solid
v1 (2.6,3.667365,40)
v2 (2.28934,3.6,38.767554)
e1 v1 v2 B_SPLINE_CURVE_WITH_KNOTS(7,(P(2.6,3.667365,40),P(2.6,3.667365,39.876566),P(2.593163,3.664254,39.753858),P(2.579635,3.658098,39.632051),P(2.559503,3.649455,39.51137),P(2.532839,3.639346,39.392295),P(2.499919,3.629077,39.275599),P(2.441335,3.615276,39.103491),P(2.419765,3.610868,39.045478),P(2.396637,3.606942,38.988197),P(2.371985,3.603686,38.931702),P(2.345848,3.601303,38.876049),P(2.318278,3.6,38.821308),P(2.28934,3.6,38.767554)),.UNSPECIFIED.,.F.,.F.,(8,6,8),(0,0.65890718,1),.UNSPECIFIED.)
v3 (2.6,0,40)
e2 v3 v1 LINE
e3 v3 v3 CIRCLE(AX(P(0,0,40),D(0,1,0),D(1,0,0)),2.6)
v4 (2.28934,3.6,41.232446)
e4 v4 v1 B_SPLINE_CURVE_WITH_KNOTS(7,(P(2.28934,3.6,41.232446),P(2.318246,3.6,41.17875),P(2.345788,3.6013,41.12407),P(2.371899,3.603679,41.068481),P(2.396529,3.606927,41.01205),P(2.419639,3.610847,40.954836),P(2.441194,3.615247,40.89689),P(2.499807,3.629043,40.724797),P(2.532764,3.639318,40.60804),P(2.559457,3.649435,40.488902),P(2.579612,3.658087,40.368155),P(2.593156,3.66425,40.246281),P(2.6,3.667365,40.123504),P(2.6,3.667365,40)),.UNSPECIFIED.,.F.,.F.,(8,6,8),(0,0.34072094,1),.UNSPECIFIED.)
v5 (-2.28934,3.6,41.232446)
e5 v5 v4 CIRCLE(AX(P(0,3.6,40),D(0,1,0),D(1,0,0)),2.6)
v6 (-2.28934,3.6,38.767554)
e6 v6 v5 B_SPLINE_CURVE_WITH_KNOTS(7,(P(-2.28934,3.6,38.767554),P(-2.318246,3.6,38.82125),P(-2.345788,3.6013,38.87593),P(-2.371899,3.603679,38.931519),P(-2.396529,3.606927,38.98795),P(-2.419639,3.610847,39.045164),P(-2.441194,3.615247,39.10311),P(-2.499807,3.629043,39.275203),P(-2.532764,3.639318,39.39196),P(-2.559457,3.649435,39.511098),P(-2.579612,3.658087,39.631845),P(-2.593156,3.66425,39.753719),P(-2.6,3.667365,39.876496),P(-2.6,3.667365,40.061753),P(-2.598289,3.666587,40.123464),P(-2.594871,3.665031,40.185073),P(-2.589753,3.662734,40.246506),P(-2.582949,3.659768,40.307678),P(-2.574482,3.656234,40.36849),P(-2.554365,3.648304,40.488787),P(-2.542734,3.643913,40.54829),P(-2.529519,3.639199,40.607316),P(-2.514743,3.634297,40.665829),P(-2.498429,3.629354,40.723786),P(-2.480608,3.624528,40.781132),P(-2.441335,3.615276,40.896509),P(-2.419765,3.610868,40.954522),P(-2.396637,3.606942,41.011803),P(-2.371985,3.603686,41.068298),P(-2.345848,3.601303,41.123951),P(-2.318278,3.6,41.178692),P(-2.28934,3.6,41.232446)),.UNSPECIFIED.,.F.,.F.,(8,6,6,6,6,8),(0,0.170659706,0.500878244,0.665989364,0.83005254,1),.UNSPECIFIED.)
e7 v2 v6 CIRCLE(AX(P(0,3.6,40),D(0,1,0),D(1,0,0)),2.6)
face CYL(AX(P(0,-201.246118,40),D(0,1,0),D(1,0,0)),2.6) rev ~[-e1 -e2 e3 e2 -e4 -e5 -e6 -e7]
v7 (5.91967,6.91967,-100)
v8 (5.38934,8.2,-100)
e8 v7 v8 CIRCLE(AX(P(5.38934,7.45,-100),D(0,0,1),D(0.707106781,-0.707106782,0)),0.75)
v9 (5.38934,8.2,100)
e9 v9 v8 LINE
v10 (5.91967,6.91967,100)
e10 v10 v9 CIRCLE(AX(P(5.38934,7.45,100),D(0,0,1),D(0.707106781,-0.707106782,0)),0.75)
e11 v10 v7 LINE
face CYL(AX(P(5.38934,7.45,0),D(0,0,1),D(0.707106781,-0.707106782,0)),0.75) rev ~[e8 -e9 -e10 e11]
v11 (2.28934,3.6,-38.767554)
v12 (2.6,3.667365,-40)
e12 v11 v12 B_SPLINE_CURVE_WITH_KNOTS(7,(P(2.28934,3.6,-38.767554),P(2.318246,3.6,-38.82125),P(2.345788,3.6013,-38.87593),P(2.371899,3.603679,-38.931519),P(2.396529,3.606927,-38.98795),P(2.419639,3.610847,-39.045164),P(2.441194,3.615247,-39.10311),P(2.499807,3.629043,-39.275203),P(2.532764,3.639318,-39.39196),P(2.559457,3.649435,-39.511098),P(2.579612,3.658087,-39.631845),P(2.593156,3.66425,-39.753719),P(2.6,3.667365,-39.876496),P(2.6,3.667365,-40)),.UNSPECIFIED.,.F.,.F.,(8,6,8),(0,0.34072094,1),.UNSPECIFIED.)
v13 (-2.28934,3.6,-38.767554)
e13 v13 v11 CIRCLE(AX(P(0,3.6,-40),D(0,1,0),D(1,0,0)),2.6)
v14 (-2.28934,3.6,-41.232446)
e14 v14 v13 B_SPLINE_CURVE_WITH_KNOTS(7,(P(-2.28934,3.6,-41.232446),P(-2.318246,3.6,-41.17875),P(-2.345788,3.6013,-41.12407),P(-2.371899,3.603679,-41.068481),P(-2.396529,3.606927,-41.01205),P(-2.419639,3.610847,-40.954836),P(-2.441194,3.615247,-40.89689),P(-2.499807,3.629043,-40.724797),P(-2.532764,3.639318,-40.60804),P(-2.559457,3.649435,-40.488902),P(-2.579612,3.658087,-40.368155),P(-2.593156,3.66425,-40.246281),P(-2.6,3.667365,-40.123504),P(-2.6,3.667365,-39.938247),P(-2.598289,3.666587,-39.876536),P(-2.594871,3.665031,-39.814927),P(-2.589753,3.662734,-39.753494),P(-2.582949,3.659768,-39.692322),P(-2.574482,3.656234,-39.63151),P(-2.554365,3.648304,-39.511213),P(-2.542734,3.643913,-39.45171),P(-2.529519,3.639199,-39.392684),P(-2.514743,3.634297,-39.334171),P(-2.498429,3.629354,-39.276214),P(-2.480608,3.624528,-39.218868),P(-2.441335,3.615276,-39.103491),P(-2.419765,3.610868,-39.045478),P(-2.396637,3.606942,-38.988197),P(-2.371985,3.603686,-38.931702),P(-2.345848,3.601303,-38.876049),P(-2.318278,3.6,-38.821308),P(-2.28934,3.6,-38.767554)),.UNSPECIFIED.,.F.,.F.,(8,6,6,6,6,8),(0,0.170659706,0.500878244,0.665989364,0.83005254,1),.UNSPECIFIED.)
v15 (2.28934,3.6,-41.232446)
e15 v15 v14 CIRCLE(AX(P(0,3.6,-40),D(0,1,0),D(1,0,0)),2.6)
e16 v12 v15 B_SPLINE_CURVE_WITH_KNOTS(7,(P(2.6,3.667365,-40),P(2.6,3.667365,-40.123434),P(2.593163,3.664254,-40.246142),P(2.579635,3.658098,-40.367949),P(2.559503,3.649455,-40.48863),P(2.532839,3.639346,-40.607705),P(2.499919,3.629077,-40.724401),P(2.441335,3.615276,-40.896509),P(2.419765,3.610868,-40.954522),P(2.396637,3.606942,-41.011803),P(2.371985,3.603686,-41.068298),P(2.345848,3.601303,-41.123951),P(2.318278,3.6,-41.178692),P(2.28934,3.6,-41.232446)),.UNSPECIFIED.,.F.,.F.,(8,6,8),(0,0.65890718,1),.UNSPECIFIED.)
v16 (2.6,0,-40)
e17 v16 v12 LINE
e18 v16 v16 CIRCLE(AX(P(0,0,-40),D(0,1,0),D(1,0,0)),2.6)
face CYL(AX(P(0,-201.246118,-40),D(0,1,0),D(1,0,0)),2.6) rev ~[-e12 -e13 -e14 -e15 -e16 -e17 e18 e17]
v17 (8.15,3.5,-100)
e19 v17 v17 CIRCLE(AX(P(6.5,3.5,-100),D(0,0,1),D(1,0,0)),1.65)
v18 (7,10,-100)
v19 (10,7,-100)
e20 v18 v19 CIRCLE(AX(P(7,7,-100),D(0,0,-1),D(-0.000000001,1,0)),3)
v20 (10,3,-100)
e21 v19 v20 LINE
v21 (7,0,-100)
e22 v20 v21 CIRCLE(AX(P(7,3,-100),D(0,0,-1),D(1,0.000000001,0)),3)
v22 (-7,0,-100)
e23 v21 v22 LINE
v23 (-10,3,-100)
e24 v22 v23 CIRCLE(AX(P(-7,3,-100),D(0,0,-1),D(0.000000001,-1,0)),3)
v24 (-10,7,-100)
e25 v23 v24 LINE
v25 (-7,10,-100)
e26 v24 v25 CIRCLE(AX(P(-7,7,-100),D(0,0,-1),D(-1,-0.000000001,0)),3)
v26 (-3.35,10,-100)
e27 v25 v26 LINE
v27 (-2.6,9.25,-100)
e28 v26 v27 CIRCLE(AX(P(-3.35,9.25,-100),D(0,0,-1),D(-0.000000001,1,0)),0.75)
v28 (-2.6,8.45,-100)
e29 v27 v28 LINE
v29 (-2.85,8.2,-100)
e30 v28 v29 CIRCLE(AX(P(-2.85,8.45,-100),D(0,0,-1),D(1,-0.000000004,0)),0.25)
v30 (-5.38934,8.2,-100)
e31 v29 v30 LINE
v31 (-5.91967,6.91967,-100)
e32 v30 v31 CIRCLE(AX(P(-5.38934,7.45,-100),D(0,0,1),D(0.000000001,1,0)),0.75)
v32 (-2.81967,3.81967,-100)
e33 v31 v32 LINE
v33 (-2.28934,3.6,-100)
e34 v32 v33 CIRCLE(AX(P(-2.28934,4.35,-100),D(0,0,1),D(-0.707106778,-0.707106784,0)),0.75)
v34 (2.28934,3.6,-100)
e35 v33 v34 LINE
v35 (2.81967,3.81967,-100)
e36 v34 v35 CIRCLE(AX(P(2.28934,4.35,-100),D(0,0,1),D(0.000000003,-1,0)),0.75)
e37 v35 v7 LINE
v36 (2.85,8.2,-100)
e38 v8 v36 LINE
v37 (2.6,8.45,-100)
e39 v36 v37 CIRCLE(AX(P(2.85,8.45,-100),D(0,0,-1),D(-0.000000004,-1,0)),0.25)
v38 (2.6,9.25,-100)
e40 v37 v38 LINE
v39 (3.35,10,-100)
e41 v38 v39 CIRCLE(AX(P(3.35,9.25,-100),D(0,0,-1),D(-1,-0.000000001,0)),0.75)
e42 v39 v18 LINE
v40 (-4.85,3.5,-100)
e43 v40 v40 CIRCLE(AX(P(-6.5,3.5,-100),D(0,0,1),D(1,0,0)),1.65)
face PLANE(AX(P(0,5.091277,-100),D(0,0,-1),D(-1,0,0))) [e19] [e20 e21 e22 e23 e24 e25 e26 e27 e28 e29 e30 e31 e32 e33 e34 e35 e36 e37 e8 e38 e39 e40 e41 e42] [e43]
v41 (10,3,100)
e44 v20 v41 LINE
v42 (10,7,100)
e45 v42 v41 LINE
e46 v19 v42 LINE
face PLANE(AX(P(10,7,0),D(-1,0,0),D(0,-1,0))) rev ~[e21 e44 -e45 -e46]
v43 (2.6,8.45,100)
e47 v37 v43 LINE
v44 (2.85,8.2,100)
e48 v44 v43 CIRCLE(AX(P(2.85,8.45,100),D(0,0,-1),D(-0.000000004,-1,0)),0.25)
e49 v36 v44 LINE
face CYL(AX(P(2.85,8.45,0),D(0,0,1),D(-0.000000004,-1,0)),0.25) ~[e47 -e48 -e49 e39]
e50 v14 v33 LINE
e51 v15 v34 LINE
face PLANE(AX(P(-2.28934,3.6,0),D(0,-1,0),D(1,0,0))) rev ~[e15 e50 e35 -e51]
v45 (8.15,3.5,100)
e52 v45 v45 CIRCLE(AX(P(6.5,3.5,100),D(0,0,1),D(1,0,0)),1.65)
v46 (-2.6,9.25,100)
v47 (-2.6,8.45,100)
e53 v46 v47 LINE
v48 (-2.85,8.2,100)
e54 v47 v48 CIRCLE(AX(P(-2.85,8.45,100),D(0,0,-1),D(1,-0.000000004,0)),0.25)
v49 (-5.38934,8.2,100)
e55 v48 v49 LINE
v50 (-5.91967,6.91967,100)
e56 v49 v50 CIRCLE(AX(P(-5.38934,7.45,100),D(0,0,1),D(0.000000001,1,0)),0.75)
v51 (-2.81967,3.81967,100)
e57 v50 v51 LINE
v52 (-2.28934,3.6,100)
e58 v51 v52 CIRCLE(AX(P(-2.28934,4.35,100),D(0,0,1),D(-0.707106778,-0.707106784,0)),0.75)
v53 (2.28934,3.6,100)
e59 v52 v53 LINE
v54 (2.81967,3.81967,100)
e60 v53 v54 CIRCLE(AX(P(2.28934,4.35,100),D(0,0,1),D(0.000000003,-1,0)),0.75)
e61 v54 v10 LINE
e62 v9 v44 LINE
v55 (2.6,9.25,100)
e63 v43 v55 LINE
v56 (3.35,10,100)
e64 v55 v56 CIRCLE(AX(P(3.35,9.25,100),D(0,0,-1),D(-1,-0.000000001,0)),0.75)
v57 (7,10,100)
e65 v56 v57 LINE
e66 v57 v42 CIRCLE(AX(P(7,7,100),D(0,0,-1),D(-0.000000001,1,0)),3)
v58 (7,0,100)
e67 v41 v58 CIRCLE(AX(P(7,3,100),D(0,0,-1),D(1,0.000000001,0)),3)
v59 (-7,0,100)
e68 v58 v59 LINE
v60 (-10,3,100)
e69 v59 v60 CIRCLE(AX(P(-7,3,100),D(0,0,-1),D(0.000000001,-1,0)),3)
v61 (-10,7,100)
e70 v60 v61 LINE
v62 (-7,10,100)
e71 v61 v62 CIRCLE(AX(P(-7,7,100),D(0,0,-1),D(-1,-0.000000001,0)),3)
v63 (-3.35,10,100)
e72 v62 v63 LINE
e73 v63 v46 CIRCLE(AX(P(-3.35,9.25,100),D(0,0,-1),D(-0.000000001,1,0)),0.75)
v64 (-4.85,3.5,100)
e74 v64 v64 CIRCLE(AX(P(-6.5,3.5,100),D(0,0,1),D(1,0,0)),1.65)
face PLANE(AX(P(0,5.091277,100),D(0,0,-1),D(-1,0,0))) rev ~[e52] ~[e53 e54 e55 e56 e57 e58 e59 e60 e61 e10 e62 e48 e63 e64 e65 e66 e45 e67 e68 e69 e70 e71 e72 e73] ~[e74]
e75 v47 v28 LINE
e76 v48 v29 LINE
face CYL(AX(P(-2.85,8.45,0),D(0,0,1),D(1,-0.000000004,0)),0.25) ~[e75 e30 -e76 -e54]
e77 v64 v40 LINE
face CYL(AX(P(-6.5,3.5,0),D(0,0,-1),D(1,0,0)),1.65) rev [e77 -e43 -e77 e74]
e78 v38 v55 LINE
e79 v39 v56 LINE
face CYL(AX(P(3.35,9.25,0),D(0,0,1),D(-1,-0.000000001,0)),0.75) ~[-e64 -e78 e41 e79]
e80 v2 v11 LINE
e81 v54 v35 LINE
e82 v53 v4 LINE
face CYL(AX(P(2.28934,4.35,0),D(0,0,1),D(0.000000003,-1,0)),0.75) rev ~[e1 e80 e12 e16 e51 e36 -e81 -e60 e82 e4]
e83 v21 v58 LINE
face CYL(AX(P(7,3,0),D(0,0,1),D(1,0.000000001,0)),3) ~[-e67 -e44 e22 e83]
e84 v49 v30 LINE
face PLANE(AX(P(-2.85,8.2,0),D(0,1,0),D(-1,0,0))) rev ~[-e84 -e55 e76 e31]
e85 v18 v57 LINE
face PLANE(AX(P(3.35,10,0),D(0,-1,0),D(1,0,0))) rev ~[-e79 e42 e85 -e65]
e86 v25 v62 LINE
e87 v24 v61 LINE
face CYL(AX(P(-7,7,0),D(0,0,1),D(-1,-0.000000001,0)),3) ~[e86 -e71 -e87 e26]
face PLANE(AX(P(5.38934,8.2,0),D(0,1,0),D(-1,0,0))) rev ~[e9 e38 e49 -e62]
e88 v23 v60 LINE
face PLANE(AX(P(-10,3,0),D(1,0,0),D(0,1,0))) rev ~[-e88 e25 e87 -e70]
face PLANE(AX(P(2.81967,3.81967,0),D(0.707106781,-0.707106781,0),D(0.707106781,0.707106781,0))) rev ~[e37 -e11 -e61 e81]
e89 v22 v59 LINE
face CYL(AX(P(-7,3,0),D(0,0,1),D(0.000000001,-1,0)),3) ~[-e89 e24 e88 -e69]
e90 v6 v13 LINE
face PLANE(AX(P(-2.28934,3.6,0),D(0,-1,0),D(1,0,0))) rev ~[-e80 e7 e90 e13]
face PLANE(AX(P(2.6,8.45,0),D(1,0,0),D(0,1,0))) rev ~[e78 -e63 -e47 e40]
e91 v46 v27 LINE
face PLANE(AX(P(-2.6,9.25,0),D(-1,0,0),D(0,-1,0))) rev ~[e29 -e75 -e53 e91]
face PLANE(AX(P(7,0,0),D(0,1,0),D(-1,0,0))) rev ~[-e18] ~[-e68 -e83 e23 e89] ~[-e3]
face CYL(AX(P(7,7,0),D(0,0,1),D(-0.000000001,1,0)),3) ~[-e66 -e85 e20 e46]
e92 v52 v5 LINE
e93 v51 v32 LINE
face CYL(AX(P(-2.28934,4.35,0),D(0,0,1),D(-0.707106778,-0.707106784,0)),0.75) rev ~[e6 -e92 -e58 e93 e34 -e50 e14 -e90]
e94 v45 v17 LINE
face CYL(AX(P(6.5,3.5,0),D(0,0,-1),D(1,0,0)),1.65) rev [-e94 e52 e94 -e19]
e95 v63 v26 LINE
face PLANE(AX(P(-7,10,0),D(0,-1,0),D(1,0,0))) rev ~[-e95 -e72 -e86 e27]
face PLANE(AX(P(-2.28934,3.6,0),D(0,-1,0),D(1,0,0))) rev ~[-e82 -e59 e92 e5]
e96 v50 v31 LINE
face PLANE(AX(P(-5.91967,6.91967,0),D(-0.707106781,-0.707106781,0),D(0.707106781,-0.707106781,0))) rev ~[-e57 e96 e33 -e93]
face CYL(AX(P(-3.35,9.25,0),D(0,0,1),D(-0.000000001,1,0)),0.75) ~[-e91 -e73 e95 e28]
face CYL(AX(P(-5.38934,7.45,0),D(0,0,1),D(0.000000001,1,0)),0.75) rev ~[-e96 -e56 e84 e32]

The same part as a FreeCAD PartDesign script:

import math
import FreeCAD as App
import Part
import Sketcher

doc = App.newDocument("Part")
body = doc.addObject("PartDesign::Body", "Body")

# Sketch on XY plane
sketch1 = body.newObject("Sketcher::SketchObject", "Sketch")
sketch1.AttachmentSupport = (doc.getObject("XY_Plane"), [""])
sketch1.MapMode = "FlatFace"
sketch1.addGeometry(Part.LineSegment(App.Vector(-3.35, 10, 0), App.Vector(-7, 10, 0)), False)
sketch1.addGeometry(Part.ArcOfCircle(Part.Circle(App.Vector(-7, 7, 0), App.Vector(0, 0, 1), 3), math.radians(90), math.radians(180)), False)
sketch1.addGeometry(Part.LineSegment(App.Vector(-10, 7, 0), App.Vector(-10, 3, 0)), False)
sketch1.addGeometry(Part.ArcOfCircle(Part.Circle(App.Vector(-7, 3, 0), App.Vector(0, 0, 1), 3), math.radians(180), math.radians(270)), False)
sketch1.addGeometry(Part.LineSegment(App.Vector(-7, 0, 0), App.Vector(7, 0, 0)), False)
sketch1.addGeometry(Part.ArcOfCircle(Part.Circle(App.Vector(7, 3, 0), App.Vector(0, 0, 1), 3), math.radians(-90), math.radians(0)), False)
sketch1.addGeometry(Part.LineSegment(App.Vector(10, 3, 0), App.Vector(10, 7, 0)), False)
sketch1.addGeometry(Part.ArcOfCircle(Part.Circle(App.Vector(7, 7, 0), App.Vector(0, 0, 1), 3), math.radians(0), math.radians(90)), False)
sketch1.addGeometry(Part.LineSegment(App.Vector(7, 10, 0), App.Vector(3.35, 10, 0)), False)
sketch1.addGeometry(Part.ArcOfCircle(Part.Circle(App.Vector(3.35, 9.25, 0), App.Vector(0, 0, 1), 0.75), math.radians(90), math.radians(180)), False)
sketch1.addGeometry(Part.LineSegment(App.Vector(2.6, 9.25, 0), App.Vector(2.6, 8.45, 0)), False)
sketch1.addGeometry(Part.ArcOfCircle(Part.Circle(App.Vector(2.85, 8.45, 0), App.Vector(0, 0, 1), 0.25), math.radians(-180), math.radians(-90)), False)
sketch1.addGeometry(Part.LineSegment(App.Vector(2.85, 8.2, 0), App.Vector(5.39, 8.2, 0)), False)
sketch1.addGeometry(Part.ArcOfCircle(Part.Circle(App.Vector(5.39, 7.45, 0), App.Vector(0, 0, 1), 0.75), math.radians(-45), math.radians(90)), False)
sketch1.addGeometry(Part.LineSegment(App.Vector(5.92, 6.92, 0), App.Vector(2.82, 3.82, 0)), False)
sketch1.addGeometry(Part.ArcOfCircle(Part.Circle(App.Vector(2.29, 4.35, 0), App.Vector(0, 0, 1), 0.75), math.radians(-90), math.radians(-45)), False)
sketch1.addGeometry(Part.LineSegment(App.Vector(2.29, 3.6, 0), App.Vector(-2.29, 3.6, 0)), False)
sketch1.addGeometry(Part.ArcOfCircle(Part.Circle(App.Vector(-2.29, 4.35, 0), App.Vector(0, 0, 1), 0.75), math.radians(-135), math.radians(-90)), False)
sketch1.addGeometry(Part.LineSegment(App.Vector(-2.82, 3.82, 0), App.Vector(-5.92, 6.92, 0)), False)
sketch1.addGeometry(Part.ArcOfCircle(Part.Circle(App.Vector(-5.39, 7.45, 0), App.Vector(0, 0, 1), 0.75), math.radians(90), math.radians(225)), False)
sketch1.addGeometry(Part.LineSegment(App.Vector(-5.39, 8.2, 0), App.Vector(-2.85, 8.2, 0)), False)
sketch1.addGeometry(Part.ArcOfCircle(Part.Circle(App.Vector(-2.85, 8.45, 0), App.Vector(0, 0, 1), 0.25), math.radians(-90), math.radians(0)), False)
sketch1.addGeometry(Part.LineSegment(App.Vector(-2.6, 8.45, 0), App.Vector(-2.6, 9.25, 0)), False)
sketch1.addGeometry(Part.ArcOfCircle(Part.Circle(App.Vector(-3.35, 9.25, 0), App.Vector(0, 0, 1), 0.75), math.radians(0), math.radians(90)), False)
sketch1.addGeometry(Part.Circle(App.Vector(6.5, 3.5, 0), App.Vector(0, 0, 1), 1.65), False)
sketch1.addGeometry(Part.Circle(App.Vector(-6.5, 3.5, 0), App.Vector(0, 0, 1), 1.65), False)
sketch1.addConstraint(Sketcher.Constraint("Tangent", 0, 2, 1, 1))
sketch1.addConstraint(Sketcher.Constraint("Tangent", 1, 2, 2, 1))
sketch1.addConstraint(Sketcher.Constraint("Tangent", 2, 2, 3, 1))
sketch1.addConstraint(Sketcher.Constraint("Tangent", 3, 2, 4, 1))
sketch1.addConstraint(Sketcher.Constraint("Tangent", 4, 2, 5, 1))
sketch1.addConstraint(Sketcher.Constraint("Tangent", 5, 2, 6, 1))
sketch1.addConstraint(Sketcher.Constraint("Tangent", 6, 2, 7, 1))
sketch1.addConstraint(Sketcher.Constraint("Tangent", 7, 2, 8, 1))
sketch1.addConstraint(Sketcher.Constraint("Tangent", 8, 2, 9, 1))
sketch1.addConstraint(Sketcher.Constraint("Tangent", 9, 2, 10, 1))
sketch1.addConstraint(Sketcher.Constraint("Tangent", 10, 2, 11, 1))
sketch1.addConstraint(Sketcher.Constraint("Tangent", 11, 2, 12, 1))
sketch1.addConstraint(Sketcher.Constraint("Tangent", 12, 2, 13, 2))
sketch1.addConstraint(Sketcher.Constraint("Tangent", 13, 1, 14, 1))
sketch1.addConstraint(Sketcher.Constraint("Tangent", 14, 2, 15, 2))
sketch1.addConstraint(Sketcher.Constraint("Tangent", 15, 1, 16, 1))
sketch1.addConstraint(Sketcher.Constraint("Tangent", 16, 2, 17, 2))
sketch1.addConstraint(Sketcher.Constraint("Tangent", 17, 1, 18, 1))
sketch1.addConstraint(Sketcher.Constraint("Tangent", 18, 2, 19, 2))
sketch1.addConstraint(Sketcher.Constraint("Tangent", 19, 1, 20, 1))
sketch1.addConstraint(Sketcher.Constraint("Tangent", 20, 2, 21, 1))
sketch1.addConstraint(Sketcher.Constraint("Tangent", 21, 2, 22, 1))
sketch1.addConstraint(Sketcher.Constraint("Tangent", 22, 2, 23, 1))
sketch1.addConstraint(Sketcher.Constraint("Tangent", 23, 2, 0, 1))
sketch1.addConstraint(Sketcher.Constraint("Horizontal", 0))
sketch1.addConstraint(Sketcher.Constraint("Vertical", 2))
sketch1.addConstraint(Sketcher.Constraint("Horizontal", 4))
sketch1.addConstraint(Sketcher.Constraint("Vertical", 6))
sketch1.addConstraint(Sketcher.Constraint("Horizontal", 8))
sketch1.addConstraint(Sketcher.Constraint("Vertical", 10))
sketch1.addConstraint(Sketcher.Constraint("Horizontal", 12))
sketch1.addConstraint(Sketcher.Constraint("Horizontal", 16))
sketch1.addConstraint(Sketcher.Constraint("Horizontal", 20))
sketch1.addConstraint(Sketcher.Constraint("Vertical", 22))
sketch1.addConstraint(Sketcher.Constraint("Equal", 1, 3))
sketch1.addConstraint(Sketcher.Constraint("Equal", 3, 5))
sketch1.addConstraint(Sketcher.Constraint("Equal", 5, 7))
sketch1.addConstraint(Sketcher.Constraint("Equal", 9, 13))
sketch1.addConstraint(Sketcher.Constraint("Equal", 13, 15))
sketch1.addConstraint(Sketcher.Constraint("Equal", 15, 17))
sketch1.addConstraint(Sketcher.Constraint("Equal", 17, 19))
sketch1.addConstraint(Sketcher.Constraint("Equal", 11, 21))
sketch1.addConstraint(Sketcher.Constraint("Equal", 19, 23))
sketch1.addConstraint(Sketcher.Constraint("Equal", 24, 25))
sketch1.addConstraint(Sketcher.Constraint("Symmetric", 3, 2, 4, 2, -1, 1))
sketch1.addConstraint(Sketcher.Constraint("Symmetric", 13, 3, 19, 3, -2))
sketch1.addConstraint(Sketcher.Constraint("Symmetric", 9, 3, 23, 3, -2))
sketch1.addConstraint(Sketcher.Constraint("Symmetric", 24, 3, 25, 3, -2))
sketch1.addConstraint(Sketcher.Constraint("Perpendicular", 14, 18))
sketch1.addConstraint(Sketcher.Constraint("Horizontal", 14, 2, 17, 1))
sketch1.addConstraint(Sketcher.Constraint("Radius", 1, 3.0))
sketch1.addConstraint(Sketcher.Constraint("Diameter", 24, 3.3))
sketch1.addConstraint(Sketcher.Constraint("DistanceX", 4, 1, 4, 2, 14.0))
sketch1.addConstraint(Sketcher.Constraint("DistanceY", 2, 2, 2, 1, 4.0))
sketch1.addConstraint(Sketcher.Constraint("Radius", 9, 0.75))
sketch1.addConstraint(Sketcher.Constraint("Radius", 11, 0.25))
sketch1.addConstraint(Sketcher.Constraint("DistanceY", 10, 2, 10, 1, 0.8))
sketch1.addConstraint(Sketcher.Constraint("DistanceX", 0, 2, 0, 1, 3.65))
sketch1.addConstraint(Sketcher.Constraint("DistanceX", -1, 1, 24, 3, 6.5))
sketch1.addConstraint(Sketcher.Constraint("DistanceY", -1, 1, 24, 3, 3.5))
sketch1.addConstraint(Sketcher.Constraint("DistanceY", -1, 1, 15, 1, 3.6))
sketch1.addConstraint(Sketcher.Constraint("DistanceX", 12, 1, 12, 2, 2.53934))
pad1 = body.newObject("PartDesign::Pad", "Pad")
pad1.Profile = sketch1
pad1.Length = 200
pad1.Midplane = True

# Sketch on XZ plane
sketch2 = body.newObject("Sketcher::SketchObject", "Sketch001")
sketch2.AttachmentSupport = (doc.getObject("XZ_Plane"), [""])
sketch2.MapMode = "FlatFace"
sketch2.addGeometry(Part.Circle(App.Vector(0, -40, 0), App.Vector(0, 0, 1), 2.6), False)
sketch2.addGeometry(Part.Circle(App.Vector(0, 40, 0), App.Vector(0, 0, 1), 2.6), False)
sketch2.addConstraint(Sketcher.Constraint("Equal", 0, 1))
sketch2.addConstraint(Sketcher.Constraint("Symmetric", 0, 3, 1, 3, -1, 1))
sketch2.addConstraint(Sketcher.Constraint("PointOnObject", 0, 3, -2))
sketch2.addConstraint(Sketcher.Constraint("Diameter", 0, 5.2))
sketch2.addConstraint(Sketcher.Constraint("DistanceY", 0, 3, -1, 1, 40.0))
doc.recompute()
hole = body.newObject("PartDesign::Hole", "Hole")
hole.Profile = sketch2
hole.ThreadType = "None"
hole.Diameter = 5.2
hole.DepthType = "ThroughAll"

doc.recompute()
